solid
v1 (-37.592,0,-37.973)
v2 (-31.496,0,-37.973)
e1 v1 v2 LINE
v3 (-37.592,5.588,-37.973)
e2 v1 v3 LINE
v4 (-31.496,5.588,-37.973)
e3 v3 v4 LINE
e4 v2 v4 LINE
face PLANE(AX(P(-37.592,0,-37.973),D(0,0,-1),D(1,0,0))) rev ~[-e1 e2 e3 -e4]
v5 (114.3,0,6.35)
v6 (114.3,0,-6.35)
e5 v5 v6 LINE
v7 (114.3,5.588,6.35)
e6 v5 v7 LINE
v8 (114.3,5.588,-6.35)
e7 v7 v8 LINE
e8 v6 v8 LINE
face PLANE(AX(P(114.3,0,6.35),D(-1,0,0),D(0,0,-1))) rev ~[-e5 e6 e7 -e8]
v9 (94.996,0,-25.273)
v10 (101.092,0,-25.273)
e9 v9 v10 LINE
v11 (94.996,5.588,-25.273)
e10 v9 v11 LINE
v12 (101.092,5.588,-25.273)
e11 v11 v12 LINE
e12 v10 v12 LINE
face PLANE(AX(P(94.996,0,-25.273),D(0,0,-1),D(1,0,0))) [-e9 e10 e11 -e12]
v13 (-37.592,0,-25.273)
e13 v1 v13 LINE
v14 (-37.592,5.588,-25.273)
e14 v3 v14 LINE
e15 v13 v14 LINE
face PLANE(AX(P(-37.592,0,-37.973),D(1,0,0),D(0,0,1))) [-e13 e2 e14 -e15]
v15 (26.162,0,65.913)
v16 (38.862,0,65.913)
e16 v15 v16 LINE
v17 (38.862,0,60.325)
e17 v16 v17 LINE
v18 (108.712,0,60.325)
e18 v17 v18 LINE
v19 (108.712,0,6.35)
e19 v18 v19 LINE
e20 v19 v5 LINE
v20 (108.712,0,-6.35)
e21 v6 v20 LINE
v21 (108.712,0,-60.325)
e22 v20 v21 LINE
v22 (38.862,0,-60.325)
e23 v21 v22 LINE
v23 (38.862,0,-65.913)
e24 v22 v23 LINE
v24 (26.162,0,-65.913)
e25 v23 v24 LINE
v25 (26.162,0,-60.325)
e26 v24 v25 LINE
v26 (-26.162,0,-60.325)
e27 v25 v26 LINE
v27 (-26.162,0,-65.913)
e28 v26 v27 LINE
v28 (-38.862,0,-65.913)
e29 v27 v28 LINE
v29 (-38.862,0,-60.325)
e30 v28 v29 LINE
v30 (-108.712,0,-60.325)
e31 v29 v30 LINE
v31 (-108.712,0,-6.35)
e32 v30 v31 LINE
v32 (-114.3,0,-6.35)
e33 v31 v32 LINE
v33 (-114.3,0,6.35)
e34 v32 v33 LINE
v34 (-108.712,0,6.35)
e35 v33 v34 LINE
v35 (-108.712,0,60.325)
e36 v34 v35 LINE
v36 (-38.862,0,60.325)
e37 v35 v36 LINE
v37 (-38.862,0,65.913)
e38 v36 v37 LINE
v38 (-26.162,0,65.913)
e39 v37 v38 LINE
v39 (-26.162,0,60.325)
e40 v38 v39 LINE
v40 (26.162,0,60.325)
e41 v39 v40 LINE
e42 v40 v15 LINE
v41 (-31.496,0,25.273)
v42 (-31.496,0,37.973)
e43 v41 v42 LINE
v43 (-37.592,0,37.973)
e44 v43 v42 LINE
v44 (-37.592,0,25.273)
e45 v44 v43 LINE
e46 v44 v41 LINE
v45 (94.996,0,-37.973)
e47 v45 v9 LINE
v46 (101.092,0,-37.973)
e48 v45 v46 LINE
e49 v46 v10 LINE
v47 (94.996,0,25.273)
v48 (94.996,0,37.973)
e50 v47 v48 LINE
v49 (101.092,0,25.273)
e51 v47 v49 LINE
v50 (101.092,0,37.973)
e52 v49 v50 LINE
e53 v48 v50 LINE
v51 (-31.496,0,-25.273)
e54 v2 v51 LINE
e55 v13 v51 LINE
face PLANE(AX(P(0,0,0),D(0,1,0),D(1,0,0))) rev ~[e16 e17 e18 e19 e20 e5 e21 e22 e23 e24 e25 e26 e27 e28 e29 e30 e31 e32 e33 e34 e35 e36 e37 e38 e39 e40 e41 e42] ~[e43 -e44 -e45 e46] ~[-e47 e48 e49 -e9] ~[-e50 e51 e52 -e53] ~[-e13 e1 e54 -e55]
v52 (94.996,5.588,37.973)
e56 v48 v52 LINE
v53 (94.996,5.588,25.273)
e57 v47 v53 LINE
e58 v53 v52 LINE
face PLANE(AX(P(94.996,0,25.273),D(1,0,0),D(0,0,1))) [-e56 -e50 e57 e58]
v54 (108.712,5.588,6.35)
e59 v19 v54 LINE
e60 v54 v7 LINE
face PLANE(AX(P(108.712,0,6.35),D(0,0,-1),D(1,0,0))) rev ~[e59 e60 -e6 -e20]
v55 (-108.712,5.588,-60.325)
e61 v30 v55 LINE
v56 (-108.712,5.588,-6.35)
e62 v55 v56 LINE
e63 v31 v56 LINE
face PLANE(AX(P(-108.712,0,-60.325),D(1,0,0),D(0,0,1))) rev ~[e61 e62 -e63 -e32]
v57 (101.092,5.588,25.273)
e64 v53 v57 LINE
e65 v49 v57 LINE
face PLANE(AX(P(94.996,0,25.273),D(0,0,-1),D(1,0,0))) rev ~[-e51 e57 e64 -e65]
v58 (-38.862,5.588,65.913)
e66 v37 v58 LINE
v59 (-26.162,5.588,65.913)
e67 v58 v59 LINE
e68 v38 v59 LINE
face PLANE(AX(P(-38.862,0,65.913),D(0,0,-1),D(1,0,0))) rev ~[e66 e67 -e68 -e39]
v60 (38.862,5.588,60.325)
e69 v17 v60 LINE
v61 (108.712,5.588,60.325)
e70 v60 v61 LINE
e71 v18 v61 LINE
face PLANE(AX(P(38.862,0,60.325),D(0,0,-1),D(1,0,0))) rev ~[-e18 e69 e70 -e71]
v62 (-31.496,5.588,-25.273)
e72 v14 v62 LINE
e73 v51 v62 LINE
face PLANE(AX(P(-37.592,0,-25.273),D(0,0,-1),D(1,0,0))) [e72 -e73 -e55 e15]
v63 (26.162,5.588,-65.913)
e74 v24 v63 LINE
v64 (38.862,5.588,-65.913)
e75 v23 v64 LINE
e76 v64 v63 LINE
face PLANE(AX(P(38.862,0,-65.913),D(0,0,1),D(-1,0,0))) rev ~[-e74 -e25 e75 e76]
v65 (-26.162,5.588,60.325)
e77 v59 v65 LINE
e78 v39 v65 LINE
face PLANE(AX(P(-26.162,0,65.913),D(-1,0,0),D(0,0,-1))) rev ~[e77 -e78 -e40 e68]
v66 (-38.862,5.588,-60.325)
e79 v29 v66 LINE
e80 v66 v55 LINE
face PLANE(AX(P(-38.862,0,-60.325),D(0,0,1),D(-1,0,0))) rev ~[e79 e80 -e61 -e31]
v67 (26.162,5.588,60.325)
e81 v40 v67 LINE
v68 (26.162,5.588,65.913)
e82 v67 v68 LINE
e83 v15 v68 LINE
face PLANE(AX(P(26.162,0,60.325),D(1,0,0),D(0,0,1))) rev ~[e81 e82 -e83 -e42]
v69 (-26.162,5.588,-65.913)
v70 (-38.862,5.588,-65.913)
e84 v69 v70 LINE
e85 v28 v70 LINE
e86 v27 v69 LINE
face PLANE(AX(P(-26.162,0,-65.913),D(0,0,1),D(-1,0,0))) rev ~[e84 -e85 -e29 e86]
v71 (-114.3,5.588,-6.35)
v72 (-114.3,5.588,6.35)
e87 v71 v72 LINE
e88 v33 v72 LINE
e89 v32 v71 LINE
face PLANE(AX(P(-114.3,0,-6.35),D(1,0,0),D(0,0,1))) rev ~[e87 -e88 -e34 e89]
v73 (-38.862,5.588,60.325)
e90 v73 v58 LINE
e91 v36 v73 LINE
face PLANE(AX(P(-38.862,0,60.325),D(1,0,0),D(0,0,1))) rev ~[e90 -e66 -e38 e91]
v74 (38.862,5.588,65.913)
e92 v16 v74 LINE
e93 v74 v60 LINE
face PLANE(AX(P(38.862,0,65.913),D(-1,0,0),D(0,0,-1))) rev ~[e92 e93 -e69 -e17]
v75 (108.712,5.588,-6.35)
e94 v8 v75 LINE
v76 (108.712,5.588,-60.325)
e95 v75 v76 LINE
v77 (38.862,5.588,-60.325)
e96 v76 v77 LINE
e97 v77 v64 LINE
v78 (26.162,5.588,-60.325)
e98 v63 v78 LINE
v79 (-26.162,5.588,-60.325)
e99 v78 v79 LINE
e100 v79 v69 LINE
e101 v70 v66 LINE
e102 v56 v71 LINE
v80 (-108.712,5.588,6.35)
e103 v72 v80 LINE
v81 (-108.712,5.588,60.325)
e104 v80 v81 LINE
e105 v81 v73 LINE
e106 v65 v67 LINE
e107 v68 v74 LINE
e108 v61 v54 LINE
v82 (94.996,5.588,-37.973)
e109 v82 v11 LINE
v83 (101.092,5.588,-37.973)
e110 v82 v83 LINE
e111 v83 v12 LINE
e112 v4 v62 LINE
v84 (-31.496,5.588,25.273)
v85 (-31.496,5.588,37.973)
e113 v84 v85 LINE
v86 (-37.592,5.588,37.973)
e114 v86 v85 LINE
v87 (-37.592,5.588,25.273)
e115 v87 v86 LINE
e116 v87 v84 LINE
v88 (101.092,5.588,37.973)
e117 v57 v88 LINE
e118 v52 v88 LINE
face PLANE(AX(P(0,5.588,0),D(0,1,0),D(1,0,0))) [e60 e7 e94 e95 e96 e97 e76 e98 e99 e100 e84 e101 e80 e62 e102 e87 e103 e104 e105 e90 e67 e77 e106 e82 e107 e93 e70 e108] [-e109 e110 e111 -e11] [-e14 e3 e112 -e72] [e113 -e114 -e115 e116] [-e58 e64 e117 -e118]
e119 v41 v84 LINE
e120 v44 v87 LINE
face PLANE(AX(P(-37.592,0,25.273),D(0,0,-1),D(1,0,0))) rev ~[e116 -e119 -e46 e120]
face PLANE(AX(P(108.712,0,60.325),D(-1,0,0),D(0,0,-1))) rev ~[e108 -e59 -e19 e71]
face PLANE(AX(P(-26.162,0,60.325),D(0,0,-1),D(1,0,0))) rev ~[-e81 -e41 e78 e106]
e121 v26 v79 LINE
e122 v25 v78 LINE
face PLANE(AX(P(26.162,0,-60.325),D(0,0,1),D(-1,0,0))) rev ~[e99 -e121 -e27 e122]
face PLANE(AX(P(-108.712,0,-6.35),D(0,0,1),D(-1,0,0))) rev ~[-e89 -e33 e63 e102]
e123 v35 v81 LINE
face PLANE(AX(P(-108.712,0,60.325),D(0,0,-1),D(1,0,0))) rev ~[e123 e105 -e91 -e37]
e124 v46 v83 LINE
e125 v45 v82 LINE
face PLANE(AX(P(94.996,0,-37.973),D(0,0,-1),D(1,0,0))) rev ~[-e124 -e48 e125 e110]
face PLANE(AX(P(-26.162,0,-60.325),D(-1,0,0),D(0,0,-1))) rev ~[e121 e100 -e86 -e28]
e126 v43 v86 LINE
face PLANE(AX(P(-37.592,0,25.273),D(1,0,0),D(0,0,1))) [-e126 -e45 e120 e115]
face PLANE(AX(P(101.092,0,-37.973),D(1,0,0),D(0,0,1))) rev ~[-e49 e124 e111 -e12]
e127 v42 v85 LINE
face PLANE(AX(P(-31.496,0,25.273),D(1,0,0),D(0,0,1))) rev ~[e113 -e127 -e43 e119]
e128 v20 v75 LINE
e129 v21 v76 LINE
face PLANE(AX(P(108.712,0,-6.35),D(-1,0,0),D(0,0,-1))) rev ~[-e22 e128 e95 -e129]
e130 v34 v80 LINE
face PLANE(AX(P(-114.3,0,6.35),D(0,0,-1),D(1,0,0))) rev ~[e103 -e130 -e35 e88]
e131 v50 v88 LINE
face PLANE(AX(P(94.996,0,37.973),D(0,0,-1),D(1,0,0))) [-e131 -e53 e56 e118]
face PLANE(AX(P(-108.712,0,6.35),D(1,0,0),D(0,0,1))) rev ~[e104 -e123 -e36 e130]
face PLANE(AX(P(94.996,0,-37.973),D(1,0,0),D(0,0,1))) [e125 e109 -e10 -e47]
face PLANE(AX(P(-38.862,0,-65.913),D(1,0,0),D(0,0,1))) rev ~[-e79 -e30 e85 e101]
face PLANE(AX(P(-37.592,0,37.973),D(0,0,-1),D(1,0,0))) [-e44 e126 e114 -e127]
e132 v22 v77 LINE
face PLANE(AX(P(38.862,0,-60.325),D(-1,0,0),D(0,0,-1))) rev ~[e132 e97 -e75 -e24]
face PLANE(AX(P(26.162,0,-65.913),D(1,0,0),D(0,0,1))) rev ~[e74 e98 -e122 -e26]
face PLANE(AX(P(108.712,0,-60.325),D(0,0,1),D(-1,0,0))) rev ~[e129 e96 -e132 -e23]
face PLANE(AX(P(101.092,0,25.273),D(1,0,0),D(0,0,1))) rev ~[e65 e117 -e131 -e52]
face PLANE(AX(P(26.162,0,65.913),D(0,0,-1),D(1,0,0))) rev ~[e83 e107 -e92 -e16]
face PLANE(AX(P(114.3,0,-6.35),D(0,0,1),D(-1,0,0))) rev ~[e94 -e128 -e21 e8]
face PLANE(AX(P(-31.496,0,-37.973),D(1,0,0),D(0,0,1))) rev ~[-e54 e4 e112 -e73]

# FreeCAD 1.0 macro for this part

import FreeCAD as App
import Part
import Sketcher
Q = App.Units.Quantity


def add_polygon(sketch, points):
    """Adds a closed chain of lines whose ends are joined by coincident constraints."""
    first, n = sketch.GeometryCount, len(points)
    for a, b in zip(points, points[1:] + points[:1]):
        sketch.addGeometry(Part.LineSegment(App.Vector(*a, 0), App.Vector(*b, 0)), False)
    for i in range(n):
        sketch.addConstraint(Sketcher.Constraint("Coincident", first + i, 2, first + (i + 1) % n, 1))

doc = App.newDocument("Part")
body = doc.addObject("PartDesign::Body", "Body")

# Sketch on XZ plane
sketch1 = body.newObject("Sketcher::SketchObject", "Sketch")
sketch1.AttachmentSupport = (doc.getObject("XZ_Plane"), [""])
sketch1.MapMode = "FlatFace"
add_polygon(sketch1, [(-109, -6), (-114, -6), (-114, 6), (-109, 6), (-109, 60), (-39, 60), (-39, 66), (-26, 66), (-26, 60), (26, 60), (26, 66), (39, 66), (39, 60), (109, 60), (109, 6), (114, 6), (114, -6), (109, -6), (109, -60), (39, -60), (39, -66), (26, -66), (26, -60), (-26, -60), (-26, -66), (-39, -66), (-39, -60), (-109, -60)])  # lines 0-27
sketch1.addConstraint([
    Sketcher.Constraint("Horizontal", 0),
    Sketcher.Constraint("Vertical", 1),
    Sketcher.Constraint("Horizontal", 2),
    Sketcher.Constraint("Vertical", 3),
    Sketcher.Constraint("Horizontal", 4),
    Sketcher.Constraint("Vertical", 5),
    Sketcher.Constraint("Horizontal", 6),
    Sketcher.Constraint("Vertical", 7),
    Sketcher.Constraint("Horizontal", 8),
    Sketcher.Constraint("Vertical", 9),
    Sketcher.Constraint("Horizontal", 10),
    Sketcher.Constraint("Vertical", 11),
    Sketcher.Constraint("Horizontal", 12),
    Sketcher.Constraint("Vertical", 13),
    Sketcher.Constraint("Horizontal", 14),
    Sketcher.Constraint("Vertical", 15),
    Sketcher.Constraint("Horizontal", 16),
    Sketcher.Constraint("Vertical", 17),
    Sketcher.Constraint("Horizontal", 18),
    Sketcher.Constraint("Vertical", 19),
    Sketcher.Constraint("Horizontal", 20),
    Sketcher.Constraint("Vertical", 21),
    Sketcher.Constraint("Horizontal", 22),
    Sketcher.Constraint("Vertical", 23),
    Sketcher.Constraint("Horizontal", 24),
    Sketcher.Constraint("Vertical", 25),
    Sketcher.Constraint("Horizontal", 26),
    Sketcher.Constraint("Vertical", 27),
    Sketcher.Constraint("Symmetric", 0, 2, 14, 2, -1, 1),
    Sketcher.Constraint("Symmetric", 2, 2, 16, 2, -1, 1),
    Sketcher.Constraint("Symmetric", 4, 2, 18, 2, -1, 1),
    Sketcher.Constraint("Symmetric", 6, 2, 20, 2, -1, 1),
    Sketcher.Constraint("Symmetric", 8, 2, 22, 2, -1, 1),
    Sketcher.Constraint("Symmetric", 10, 2, 24, 2, -1, 1),
    Sketcher.Constraint("Symmetric", 12, 2, 26, 2, -1, 1),
    Sketcher.Constraint("Symmetric", 6, 2, 9, 2, -2),
    Sketcher.Constraint("Symmetric", 4, 2, 11, 2, -2),
    Sketcher.Constraint("Symmetric", 2, 2, 13, 2, -2),
    Sketcher.Constraint("Horizontal", 4, 2, 7, 2),
    Sketcher.Constraint("Equal", 24, 1),
    Sketcher.Constraint("Equal", 16, 5),
    Sketcher.Constraint("DistanceX", 6, 1, 6, 2, Q("0.5 in")),
    Sketcher.Constraint("DistanceX", 0, 2, 0, 1, Q("0.22 in")),
    Sketcher.Constraint("DistanceX", 4, 1, 4, 2, Q("2.75 in")),
    Sketcher.Constraint("DistanceX", 8, 1, 8, 2, Q("2.06 in")),
    Sketcher.Constraint("DistanceY", 3, 1, 3, 2, Q("2.125 in")),
])
pad1 = body.newObject("PartDesign::Pad", "Pad")
pad1.Profile = sketch1
pad1.Length = Q("0.22 in")
pad1.Reversed = True

# Sketch on XZ plane
sketch2 = body.newObject("Sketcher::SketchObject", "Sketch001")
sketch2.AttachmentSupport = (doc.getObject("XZ_Plane"), [""])
sketch2.MapMode = "FlatFace"
add_polygon(sketch2, [(-38, 38), (-38, 25), (-31, 25), (-31, 38)])  # lines 0-3
add_polygon(sketch2, [(95, 38), (95, 25), (101, 25), (101, 38)])  # lines 4-7
add_polygon(sketch2, [(95, -25), (95, -38), (101, -38), (101, -25)])  # lines 8-11
add_polygon(sketch2, [(-38, -25), (-38, -38), (-31, -38), (-31, -25)])  # lines 12-15
sketch2.addConstraint([
    Sketcher.Constraint("Vertical", 0),
    Sketcher.Constraint("Horizontal", 1),
    Sketcher.Constraint("Vertical", 2),
    Sketcher.Constraint("Horizontal", 3),
    Sketcher.Constraint("Vertical", 4),
    Sketcher.Constraint("Horizontal", 5),
    Sketcher.Constraint("Vertical", 6),
    Sketcher.Constraint("Horizontal", 7),
    Sketcher.Constraint("Vertical", 8),
    Sketcher.Constraint("Horizontal", 9),
    Sketcher.Constraint("Vertical", 10),
    Sketcher.Constraint("Horizontal", 11),
    Sketcher.Constraint("Vertical", 12),
    Sketcher.Constraint("Horizontal", 13),
    Sketcher.Constraint("Vertical", 14),
    Sketcher.Constraint("Horizontal", 15),
    Sketcher.Constraint("Symmetric", 7, 2, 8, 2, -1),
    Sketcher.Constraint("Symmetric", 5, 2, 10, 2, -1),
    Sketcher.Constraint("Symmetric", 3, 2, 12, 2, -1),
    Sketcher.Constraint("Symmetric", 1, 2, 14, 2, -1),
    Sketcher.Constraint("Horizontal", 1, 2, 4, 2),
    Sketcher.Constraint("Horizontal", 3, 2, 6, 2),
    Sketcher.Constraint("Equal", 3, 5),
    Sketcher.Constraint("DistanceY", 0, 2, 0, 1, Q("0.5 in")),
    Sketcher.Constraint("DistanceX", 1, 1, 1, 2, Q("0.24 in")),
    Sketcher.Constraint("DistanceX", 0, 2, -1, 1, Q("1.48 in")),
    Sketcher.Constraint("DistanceX", -1, 1, 4, 2, Q("3.74 in")),
    Sketcher.Constraint("DistanceY", 8, 2, 4, 2, Q("2.49 in")),
])
pocket1 = body.newObject("PartDesign::Pocket", "Pocket")
pocket1.Profile = sketch2
pocket1.Length = Q("0.22 in")

doc.recompute()
